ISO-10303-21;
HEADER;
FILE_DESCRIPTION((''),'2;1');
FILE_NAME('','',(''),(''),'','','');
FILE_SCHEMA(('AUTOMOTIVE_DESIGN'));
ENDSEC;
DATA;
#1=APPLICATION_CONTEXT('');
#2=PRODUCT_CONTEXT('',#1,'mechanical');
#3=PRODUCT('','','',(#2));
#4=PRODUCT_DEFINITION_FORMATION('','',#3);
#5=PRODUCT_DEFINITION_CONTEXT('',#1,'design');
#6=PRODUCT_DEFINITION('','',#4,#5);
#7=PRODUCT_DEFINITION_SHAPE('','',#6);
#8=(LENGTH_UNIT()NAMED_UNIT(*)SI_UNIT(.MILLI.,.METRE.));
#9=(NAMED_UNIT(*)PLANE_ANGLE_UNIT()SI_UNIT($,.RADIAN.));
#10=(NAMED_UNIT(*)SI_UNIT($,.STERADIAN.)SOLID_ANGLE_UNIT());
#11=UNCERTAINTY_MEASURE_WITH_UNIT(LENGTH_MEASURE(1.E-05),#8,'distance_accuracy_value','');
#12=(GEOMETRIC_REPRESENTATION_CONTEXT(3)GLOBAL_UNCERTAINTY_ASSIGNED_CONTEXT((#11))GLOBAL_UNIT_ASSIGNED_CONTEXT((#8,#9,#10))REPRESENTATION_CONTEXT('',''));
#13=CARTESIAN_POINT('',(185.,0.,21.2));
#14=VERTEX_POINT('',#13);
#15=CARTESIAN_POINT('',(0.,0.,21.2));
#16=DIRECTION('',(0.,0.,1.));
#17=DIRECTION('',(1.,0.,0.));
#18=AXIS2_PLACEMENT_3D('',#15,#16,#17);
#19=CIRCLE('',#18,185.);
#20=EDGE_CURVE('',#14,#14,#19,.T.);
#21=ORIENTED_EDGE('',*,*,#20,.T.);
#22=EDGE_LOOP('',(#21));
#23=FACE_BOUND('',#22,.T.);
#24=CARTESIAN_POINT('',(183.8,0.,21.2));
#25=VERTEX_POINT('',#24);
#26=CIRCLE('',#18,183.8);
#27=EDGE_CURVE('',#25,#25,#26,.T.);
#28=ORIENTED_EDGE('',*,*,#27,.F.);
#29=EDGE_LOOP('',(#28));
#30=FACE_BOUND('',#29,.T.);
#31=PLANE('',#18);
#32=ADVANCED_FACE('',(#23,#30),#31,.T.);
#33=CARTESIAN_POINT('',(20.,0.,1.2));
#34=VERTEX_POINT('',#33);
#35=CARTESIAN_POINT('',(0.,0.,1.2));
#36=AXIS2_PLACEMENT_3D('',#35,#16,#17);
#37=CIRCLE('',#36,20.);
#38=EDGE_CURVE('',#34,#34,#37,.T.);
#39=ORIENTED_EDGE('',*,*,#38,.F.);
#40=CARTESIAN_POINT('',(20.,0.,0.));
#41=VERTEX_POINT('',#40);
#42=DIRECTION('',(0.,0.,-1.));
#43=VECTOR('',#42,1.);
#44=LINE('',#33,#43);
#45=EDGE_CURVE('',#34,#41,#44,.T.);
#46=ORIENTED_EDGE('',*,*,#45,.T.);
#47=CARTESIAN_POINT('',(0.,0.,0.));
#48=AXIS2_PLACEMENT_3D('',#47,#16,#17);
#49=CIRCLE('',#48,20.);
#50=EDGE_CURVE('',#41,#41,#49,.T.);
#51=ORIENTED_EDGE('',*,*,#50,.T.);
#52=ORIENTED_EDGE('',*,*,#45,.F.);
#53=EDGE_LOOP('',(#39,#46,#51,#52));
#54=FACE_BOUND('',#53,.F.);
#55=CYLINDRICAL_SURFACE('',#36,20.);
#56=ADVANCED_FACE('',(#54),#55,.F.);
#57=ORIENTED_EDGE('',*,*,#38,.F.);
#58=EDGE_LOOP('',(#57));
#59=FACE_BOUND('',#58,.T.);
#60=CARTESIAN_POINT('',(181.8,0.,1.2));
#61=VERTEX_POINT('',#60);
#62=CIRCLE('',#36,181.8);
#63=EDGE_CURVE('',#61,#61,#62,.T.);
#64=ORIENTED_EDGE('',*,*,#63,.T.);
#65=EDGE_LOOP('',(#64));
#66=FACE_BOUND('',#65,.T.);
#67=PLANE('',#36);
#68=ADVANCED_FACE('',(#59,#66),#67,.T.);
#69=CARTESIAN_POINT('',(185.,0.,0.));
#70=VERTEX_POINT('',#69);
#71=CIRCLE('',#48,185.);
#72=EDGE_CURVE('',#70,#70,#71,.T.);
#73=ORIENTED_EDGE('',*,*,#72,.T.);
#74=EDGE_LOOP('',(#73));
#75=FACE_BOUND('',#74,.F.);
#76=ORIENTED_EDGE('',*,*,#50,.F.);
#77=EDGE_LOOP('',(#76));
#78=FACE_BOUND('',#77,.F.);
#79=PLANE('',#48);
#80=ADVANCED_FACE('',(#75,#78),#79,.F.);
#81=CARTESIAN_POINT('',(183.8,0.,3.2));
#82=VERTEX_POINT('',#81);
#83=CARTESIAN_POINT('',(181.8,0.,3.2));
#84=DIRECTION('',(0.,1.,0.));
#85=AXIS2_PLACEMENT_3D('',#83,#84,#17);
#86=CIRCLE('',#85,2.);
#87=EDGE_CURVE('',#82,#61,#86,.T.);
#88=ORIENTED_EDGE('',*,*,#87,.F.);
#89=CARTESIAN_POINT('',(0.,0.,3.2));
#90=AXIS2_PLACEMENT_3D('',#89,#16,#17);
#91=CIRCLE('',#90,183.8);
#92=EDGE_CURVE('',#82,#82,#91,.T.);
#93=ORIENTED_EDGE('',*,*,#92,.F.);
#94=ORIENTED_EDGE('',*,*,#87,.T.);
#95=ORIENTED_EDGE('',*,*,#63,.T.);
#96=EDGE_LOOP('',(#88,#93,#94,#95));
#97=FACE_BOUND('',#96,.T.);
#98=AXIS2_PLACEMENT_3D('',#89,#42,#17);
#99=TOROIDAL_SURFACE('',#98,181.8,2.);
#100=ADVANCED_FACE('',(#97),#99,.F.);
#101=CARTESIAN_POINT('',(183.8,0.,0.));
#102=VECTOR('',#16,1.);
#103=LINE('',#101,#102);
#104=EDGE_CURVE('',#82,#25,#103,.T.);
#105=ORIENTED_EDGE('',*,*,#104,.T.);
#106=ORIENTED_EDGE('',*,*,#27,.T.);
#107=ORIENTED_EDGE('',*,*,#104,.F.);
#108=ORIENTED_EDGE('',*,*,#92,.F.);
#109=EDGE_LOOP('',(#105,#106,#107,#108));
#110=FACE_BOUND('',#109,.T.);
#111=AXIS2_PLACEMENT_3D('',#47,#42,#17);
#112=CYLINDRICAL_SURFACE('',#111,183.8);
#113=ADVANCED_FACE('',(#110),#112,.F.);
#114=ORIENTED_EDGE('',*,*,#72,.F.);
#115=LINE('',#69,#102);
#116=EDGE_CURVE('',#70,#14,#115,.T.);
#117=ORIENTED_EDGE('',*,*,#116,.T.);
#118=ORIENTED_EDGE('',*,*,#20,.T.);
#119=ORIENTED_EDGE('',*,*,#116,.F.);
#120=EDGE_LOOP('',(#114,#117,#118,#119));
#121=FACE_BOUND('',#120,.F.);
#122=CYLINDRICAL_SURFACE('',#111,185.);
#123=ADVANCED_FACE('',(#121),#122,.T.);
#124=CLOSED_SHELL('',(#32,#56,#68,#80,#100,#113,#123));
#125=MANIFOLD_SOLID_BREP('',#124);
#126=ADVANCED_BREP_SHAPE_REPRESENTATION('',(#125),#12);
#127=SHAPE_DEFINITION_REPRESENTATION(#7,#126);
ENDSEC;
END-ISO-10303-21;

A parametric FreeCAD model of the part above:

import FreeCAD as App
import Part
import Sketcher

V = App.Vector
Q = App.Units.Quantity


def edges_at(feature, points):
    """Names of the edges that pass closest to the given points."""
    edges = feature.Shape.Edges
    near = lambda p: min(range(len(edges)), key=lambda i: edges[i].distToShape(Part.Vertex(*p))[0])
    return sorted({f"Edge{near(p) + 1}" for p in points})

doc = App.newDocument("Part")
params = doc.addObject("Spreadsheet::Sheet", "Params")
for row, (alias, value) in enumerate([
    ("sketch1_diameter", "367.6 mm"),
    ("pad1_length", "1.2 mm"),
    ("sketch2_diameter", "370 mm"),
    ("sketch2_diameter2", "367.6 mm"),
    ("pad2_length", "21.2 mm"),
    ("fillet_radius", "2 mm"),
    ("sketch3_diameter", "40 mm"),
    ("pocket1_length", "10 mm"),
], start=1):
    params.set(f"A{row}", alias)
    params.set(f"B{row}", "=" + value)
    params.setAlias(f"B{row}", alias)

body = doc.addObject("PartDesign::Body", "Body")

# Sketch on XY plane
sketch1 = doc.addObject("Sketcher::SketchObject", "Sketch")
body.addObject(sketch1)
sketch1.AttachmentSupport = (doc.XY_Plane, [""])
sketch1.MapMode = "FlatFace"
sketch1.addGeometry(Part.Circle(V(0, 0, 0), V(0, 0, 1), 183.8), False)
sketch1.addConstraint(Sketcher.Constraint("Coincident", 0, 3, -1, 1))
sketch1.addConstraint(Sketcher.Constraint("Diameter", 0, Q("367.6 mm")))
sketch1.setExpression("Constraints[1]", "Params.sketch1_diameter")
pad1 = doc.addObject("PartDesign::Pad", "Pad")
body.addObject(pad1)
pad1.Profile = sketch1
pad1.setExpression("Length", "Params.pad1_length")

# Sketch on XY plane
sketch2 = doc.addObject("Sketcher::SketchObject", "Sketch001")
body.addObject(sketch2)
sketch2.AttachmentSupport = (doc.XY_Plane, [""])
sketch2.MapMode = "FlatFace"
sketch2.addGeometry(Part.Circle(V(0, 0, 0), V(0, 0, 1), 185), False)
sketch2.addGeometry(Part.Circle(V(0, 0, 0), V(0, 0, 1), 183.8), False)
sketch2.addConstraint(Sketcher.Constraint("Coincident", 0, 3, -1, 1))
sketch2.addConstraint(Sketcher.Constraint("Coincident", 1, 3, -1, 1))
sketch2.addConstraint(Sketcher.Constraint("Diameter", 0, Q("370 mm")))
sketch2.addConstraint(Sketcher.Constraint("Diameter", 1, Q("367.6 mm")))
sketch2.setExpression("Constraints[2]", "Params.sketch2_diameter")
sketch2.setExpression("Constraints[3]", "Params.sketch2_diameter2")
pad2 = doc.addObject("PartDesign::Pad", "Pad001")
body.addObject(pad2)
pad2.Profile = sketch2
pad2.setExpression("Length", "Params.pad2_length")
doc.recompute()

fillet = doc.addObject("PartDesign::Fillet", "Fillet")
body.addObject(fillet)
fillet.Base = (pad2, edges_at(pad2, [(-183.8, 0, 1.2)]))
fillet.setExpression("Radius", "Params.fillet_radius")

# Sketch on XY plane
sketch3 = doc.addObject("Sketcher::SketchObject", "Sketch002")
body.addObject(sketch3)
sketch3.AttachmentSupport = (doc.XY_Plane, [""])
sketch3.MapMode = "FlatFace"
sketch3.AttachmentOffset = App.Placement(V(0, 0, 1.2), App.Rotation())
sketch3.addGeometry(Part.Circle(V(0, 0, 0), V(0, 0, 1), 20), False)
sketch3.addConstraint(Sketcher.Constraint("Coincident", 0, 3, -1, 1))
sketch3.addConstraint(Sketcher.Constraint("Diameter", 0, Q("40 mm")))
sketch3.setExpression("Constraints[1]", "Params.sketch3_diameter")
pocket1 = doc.addObject("PartDesign::Pocket", "Pocket")
body.addObject(pocket1)
pocket1.Profile = sketch3
pocket1.setExpression("Length", "Params.pocket1_length")

doc.recompute()
